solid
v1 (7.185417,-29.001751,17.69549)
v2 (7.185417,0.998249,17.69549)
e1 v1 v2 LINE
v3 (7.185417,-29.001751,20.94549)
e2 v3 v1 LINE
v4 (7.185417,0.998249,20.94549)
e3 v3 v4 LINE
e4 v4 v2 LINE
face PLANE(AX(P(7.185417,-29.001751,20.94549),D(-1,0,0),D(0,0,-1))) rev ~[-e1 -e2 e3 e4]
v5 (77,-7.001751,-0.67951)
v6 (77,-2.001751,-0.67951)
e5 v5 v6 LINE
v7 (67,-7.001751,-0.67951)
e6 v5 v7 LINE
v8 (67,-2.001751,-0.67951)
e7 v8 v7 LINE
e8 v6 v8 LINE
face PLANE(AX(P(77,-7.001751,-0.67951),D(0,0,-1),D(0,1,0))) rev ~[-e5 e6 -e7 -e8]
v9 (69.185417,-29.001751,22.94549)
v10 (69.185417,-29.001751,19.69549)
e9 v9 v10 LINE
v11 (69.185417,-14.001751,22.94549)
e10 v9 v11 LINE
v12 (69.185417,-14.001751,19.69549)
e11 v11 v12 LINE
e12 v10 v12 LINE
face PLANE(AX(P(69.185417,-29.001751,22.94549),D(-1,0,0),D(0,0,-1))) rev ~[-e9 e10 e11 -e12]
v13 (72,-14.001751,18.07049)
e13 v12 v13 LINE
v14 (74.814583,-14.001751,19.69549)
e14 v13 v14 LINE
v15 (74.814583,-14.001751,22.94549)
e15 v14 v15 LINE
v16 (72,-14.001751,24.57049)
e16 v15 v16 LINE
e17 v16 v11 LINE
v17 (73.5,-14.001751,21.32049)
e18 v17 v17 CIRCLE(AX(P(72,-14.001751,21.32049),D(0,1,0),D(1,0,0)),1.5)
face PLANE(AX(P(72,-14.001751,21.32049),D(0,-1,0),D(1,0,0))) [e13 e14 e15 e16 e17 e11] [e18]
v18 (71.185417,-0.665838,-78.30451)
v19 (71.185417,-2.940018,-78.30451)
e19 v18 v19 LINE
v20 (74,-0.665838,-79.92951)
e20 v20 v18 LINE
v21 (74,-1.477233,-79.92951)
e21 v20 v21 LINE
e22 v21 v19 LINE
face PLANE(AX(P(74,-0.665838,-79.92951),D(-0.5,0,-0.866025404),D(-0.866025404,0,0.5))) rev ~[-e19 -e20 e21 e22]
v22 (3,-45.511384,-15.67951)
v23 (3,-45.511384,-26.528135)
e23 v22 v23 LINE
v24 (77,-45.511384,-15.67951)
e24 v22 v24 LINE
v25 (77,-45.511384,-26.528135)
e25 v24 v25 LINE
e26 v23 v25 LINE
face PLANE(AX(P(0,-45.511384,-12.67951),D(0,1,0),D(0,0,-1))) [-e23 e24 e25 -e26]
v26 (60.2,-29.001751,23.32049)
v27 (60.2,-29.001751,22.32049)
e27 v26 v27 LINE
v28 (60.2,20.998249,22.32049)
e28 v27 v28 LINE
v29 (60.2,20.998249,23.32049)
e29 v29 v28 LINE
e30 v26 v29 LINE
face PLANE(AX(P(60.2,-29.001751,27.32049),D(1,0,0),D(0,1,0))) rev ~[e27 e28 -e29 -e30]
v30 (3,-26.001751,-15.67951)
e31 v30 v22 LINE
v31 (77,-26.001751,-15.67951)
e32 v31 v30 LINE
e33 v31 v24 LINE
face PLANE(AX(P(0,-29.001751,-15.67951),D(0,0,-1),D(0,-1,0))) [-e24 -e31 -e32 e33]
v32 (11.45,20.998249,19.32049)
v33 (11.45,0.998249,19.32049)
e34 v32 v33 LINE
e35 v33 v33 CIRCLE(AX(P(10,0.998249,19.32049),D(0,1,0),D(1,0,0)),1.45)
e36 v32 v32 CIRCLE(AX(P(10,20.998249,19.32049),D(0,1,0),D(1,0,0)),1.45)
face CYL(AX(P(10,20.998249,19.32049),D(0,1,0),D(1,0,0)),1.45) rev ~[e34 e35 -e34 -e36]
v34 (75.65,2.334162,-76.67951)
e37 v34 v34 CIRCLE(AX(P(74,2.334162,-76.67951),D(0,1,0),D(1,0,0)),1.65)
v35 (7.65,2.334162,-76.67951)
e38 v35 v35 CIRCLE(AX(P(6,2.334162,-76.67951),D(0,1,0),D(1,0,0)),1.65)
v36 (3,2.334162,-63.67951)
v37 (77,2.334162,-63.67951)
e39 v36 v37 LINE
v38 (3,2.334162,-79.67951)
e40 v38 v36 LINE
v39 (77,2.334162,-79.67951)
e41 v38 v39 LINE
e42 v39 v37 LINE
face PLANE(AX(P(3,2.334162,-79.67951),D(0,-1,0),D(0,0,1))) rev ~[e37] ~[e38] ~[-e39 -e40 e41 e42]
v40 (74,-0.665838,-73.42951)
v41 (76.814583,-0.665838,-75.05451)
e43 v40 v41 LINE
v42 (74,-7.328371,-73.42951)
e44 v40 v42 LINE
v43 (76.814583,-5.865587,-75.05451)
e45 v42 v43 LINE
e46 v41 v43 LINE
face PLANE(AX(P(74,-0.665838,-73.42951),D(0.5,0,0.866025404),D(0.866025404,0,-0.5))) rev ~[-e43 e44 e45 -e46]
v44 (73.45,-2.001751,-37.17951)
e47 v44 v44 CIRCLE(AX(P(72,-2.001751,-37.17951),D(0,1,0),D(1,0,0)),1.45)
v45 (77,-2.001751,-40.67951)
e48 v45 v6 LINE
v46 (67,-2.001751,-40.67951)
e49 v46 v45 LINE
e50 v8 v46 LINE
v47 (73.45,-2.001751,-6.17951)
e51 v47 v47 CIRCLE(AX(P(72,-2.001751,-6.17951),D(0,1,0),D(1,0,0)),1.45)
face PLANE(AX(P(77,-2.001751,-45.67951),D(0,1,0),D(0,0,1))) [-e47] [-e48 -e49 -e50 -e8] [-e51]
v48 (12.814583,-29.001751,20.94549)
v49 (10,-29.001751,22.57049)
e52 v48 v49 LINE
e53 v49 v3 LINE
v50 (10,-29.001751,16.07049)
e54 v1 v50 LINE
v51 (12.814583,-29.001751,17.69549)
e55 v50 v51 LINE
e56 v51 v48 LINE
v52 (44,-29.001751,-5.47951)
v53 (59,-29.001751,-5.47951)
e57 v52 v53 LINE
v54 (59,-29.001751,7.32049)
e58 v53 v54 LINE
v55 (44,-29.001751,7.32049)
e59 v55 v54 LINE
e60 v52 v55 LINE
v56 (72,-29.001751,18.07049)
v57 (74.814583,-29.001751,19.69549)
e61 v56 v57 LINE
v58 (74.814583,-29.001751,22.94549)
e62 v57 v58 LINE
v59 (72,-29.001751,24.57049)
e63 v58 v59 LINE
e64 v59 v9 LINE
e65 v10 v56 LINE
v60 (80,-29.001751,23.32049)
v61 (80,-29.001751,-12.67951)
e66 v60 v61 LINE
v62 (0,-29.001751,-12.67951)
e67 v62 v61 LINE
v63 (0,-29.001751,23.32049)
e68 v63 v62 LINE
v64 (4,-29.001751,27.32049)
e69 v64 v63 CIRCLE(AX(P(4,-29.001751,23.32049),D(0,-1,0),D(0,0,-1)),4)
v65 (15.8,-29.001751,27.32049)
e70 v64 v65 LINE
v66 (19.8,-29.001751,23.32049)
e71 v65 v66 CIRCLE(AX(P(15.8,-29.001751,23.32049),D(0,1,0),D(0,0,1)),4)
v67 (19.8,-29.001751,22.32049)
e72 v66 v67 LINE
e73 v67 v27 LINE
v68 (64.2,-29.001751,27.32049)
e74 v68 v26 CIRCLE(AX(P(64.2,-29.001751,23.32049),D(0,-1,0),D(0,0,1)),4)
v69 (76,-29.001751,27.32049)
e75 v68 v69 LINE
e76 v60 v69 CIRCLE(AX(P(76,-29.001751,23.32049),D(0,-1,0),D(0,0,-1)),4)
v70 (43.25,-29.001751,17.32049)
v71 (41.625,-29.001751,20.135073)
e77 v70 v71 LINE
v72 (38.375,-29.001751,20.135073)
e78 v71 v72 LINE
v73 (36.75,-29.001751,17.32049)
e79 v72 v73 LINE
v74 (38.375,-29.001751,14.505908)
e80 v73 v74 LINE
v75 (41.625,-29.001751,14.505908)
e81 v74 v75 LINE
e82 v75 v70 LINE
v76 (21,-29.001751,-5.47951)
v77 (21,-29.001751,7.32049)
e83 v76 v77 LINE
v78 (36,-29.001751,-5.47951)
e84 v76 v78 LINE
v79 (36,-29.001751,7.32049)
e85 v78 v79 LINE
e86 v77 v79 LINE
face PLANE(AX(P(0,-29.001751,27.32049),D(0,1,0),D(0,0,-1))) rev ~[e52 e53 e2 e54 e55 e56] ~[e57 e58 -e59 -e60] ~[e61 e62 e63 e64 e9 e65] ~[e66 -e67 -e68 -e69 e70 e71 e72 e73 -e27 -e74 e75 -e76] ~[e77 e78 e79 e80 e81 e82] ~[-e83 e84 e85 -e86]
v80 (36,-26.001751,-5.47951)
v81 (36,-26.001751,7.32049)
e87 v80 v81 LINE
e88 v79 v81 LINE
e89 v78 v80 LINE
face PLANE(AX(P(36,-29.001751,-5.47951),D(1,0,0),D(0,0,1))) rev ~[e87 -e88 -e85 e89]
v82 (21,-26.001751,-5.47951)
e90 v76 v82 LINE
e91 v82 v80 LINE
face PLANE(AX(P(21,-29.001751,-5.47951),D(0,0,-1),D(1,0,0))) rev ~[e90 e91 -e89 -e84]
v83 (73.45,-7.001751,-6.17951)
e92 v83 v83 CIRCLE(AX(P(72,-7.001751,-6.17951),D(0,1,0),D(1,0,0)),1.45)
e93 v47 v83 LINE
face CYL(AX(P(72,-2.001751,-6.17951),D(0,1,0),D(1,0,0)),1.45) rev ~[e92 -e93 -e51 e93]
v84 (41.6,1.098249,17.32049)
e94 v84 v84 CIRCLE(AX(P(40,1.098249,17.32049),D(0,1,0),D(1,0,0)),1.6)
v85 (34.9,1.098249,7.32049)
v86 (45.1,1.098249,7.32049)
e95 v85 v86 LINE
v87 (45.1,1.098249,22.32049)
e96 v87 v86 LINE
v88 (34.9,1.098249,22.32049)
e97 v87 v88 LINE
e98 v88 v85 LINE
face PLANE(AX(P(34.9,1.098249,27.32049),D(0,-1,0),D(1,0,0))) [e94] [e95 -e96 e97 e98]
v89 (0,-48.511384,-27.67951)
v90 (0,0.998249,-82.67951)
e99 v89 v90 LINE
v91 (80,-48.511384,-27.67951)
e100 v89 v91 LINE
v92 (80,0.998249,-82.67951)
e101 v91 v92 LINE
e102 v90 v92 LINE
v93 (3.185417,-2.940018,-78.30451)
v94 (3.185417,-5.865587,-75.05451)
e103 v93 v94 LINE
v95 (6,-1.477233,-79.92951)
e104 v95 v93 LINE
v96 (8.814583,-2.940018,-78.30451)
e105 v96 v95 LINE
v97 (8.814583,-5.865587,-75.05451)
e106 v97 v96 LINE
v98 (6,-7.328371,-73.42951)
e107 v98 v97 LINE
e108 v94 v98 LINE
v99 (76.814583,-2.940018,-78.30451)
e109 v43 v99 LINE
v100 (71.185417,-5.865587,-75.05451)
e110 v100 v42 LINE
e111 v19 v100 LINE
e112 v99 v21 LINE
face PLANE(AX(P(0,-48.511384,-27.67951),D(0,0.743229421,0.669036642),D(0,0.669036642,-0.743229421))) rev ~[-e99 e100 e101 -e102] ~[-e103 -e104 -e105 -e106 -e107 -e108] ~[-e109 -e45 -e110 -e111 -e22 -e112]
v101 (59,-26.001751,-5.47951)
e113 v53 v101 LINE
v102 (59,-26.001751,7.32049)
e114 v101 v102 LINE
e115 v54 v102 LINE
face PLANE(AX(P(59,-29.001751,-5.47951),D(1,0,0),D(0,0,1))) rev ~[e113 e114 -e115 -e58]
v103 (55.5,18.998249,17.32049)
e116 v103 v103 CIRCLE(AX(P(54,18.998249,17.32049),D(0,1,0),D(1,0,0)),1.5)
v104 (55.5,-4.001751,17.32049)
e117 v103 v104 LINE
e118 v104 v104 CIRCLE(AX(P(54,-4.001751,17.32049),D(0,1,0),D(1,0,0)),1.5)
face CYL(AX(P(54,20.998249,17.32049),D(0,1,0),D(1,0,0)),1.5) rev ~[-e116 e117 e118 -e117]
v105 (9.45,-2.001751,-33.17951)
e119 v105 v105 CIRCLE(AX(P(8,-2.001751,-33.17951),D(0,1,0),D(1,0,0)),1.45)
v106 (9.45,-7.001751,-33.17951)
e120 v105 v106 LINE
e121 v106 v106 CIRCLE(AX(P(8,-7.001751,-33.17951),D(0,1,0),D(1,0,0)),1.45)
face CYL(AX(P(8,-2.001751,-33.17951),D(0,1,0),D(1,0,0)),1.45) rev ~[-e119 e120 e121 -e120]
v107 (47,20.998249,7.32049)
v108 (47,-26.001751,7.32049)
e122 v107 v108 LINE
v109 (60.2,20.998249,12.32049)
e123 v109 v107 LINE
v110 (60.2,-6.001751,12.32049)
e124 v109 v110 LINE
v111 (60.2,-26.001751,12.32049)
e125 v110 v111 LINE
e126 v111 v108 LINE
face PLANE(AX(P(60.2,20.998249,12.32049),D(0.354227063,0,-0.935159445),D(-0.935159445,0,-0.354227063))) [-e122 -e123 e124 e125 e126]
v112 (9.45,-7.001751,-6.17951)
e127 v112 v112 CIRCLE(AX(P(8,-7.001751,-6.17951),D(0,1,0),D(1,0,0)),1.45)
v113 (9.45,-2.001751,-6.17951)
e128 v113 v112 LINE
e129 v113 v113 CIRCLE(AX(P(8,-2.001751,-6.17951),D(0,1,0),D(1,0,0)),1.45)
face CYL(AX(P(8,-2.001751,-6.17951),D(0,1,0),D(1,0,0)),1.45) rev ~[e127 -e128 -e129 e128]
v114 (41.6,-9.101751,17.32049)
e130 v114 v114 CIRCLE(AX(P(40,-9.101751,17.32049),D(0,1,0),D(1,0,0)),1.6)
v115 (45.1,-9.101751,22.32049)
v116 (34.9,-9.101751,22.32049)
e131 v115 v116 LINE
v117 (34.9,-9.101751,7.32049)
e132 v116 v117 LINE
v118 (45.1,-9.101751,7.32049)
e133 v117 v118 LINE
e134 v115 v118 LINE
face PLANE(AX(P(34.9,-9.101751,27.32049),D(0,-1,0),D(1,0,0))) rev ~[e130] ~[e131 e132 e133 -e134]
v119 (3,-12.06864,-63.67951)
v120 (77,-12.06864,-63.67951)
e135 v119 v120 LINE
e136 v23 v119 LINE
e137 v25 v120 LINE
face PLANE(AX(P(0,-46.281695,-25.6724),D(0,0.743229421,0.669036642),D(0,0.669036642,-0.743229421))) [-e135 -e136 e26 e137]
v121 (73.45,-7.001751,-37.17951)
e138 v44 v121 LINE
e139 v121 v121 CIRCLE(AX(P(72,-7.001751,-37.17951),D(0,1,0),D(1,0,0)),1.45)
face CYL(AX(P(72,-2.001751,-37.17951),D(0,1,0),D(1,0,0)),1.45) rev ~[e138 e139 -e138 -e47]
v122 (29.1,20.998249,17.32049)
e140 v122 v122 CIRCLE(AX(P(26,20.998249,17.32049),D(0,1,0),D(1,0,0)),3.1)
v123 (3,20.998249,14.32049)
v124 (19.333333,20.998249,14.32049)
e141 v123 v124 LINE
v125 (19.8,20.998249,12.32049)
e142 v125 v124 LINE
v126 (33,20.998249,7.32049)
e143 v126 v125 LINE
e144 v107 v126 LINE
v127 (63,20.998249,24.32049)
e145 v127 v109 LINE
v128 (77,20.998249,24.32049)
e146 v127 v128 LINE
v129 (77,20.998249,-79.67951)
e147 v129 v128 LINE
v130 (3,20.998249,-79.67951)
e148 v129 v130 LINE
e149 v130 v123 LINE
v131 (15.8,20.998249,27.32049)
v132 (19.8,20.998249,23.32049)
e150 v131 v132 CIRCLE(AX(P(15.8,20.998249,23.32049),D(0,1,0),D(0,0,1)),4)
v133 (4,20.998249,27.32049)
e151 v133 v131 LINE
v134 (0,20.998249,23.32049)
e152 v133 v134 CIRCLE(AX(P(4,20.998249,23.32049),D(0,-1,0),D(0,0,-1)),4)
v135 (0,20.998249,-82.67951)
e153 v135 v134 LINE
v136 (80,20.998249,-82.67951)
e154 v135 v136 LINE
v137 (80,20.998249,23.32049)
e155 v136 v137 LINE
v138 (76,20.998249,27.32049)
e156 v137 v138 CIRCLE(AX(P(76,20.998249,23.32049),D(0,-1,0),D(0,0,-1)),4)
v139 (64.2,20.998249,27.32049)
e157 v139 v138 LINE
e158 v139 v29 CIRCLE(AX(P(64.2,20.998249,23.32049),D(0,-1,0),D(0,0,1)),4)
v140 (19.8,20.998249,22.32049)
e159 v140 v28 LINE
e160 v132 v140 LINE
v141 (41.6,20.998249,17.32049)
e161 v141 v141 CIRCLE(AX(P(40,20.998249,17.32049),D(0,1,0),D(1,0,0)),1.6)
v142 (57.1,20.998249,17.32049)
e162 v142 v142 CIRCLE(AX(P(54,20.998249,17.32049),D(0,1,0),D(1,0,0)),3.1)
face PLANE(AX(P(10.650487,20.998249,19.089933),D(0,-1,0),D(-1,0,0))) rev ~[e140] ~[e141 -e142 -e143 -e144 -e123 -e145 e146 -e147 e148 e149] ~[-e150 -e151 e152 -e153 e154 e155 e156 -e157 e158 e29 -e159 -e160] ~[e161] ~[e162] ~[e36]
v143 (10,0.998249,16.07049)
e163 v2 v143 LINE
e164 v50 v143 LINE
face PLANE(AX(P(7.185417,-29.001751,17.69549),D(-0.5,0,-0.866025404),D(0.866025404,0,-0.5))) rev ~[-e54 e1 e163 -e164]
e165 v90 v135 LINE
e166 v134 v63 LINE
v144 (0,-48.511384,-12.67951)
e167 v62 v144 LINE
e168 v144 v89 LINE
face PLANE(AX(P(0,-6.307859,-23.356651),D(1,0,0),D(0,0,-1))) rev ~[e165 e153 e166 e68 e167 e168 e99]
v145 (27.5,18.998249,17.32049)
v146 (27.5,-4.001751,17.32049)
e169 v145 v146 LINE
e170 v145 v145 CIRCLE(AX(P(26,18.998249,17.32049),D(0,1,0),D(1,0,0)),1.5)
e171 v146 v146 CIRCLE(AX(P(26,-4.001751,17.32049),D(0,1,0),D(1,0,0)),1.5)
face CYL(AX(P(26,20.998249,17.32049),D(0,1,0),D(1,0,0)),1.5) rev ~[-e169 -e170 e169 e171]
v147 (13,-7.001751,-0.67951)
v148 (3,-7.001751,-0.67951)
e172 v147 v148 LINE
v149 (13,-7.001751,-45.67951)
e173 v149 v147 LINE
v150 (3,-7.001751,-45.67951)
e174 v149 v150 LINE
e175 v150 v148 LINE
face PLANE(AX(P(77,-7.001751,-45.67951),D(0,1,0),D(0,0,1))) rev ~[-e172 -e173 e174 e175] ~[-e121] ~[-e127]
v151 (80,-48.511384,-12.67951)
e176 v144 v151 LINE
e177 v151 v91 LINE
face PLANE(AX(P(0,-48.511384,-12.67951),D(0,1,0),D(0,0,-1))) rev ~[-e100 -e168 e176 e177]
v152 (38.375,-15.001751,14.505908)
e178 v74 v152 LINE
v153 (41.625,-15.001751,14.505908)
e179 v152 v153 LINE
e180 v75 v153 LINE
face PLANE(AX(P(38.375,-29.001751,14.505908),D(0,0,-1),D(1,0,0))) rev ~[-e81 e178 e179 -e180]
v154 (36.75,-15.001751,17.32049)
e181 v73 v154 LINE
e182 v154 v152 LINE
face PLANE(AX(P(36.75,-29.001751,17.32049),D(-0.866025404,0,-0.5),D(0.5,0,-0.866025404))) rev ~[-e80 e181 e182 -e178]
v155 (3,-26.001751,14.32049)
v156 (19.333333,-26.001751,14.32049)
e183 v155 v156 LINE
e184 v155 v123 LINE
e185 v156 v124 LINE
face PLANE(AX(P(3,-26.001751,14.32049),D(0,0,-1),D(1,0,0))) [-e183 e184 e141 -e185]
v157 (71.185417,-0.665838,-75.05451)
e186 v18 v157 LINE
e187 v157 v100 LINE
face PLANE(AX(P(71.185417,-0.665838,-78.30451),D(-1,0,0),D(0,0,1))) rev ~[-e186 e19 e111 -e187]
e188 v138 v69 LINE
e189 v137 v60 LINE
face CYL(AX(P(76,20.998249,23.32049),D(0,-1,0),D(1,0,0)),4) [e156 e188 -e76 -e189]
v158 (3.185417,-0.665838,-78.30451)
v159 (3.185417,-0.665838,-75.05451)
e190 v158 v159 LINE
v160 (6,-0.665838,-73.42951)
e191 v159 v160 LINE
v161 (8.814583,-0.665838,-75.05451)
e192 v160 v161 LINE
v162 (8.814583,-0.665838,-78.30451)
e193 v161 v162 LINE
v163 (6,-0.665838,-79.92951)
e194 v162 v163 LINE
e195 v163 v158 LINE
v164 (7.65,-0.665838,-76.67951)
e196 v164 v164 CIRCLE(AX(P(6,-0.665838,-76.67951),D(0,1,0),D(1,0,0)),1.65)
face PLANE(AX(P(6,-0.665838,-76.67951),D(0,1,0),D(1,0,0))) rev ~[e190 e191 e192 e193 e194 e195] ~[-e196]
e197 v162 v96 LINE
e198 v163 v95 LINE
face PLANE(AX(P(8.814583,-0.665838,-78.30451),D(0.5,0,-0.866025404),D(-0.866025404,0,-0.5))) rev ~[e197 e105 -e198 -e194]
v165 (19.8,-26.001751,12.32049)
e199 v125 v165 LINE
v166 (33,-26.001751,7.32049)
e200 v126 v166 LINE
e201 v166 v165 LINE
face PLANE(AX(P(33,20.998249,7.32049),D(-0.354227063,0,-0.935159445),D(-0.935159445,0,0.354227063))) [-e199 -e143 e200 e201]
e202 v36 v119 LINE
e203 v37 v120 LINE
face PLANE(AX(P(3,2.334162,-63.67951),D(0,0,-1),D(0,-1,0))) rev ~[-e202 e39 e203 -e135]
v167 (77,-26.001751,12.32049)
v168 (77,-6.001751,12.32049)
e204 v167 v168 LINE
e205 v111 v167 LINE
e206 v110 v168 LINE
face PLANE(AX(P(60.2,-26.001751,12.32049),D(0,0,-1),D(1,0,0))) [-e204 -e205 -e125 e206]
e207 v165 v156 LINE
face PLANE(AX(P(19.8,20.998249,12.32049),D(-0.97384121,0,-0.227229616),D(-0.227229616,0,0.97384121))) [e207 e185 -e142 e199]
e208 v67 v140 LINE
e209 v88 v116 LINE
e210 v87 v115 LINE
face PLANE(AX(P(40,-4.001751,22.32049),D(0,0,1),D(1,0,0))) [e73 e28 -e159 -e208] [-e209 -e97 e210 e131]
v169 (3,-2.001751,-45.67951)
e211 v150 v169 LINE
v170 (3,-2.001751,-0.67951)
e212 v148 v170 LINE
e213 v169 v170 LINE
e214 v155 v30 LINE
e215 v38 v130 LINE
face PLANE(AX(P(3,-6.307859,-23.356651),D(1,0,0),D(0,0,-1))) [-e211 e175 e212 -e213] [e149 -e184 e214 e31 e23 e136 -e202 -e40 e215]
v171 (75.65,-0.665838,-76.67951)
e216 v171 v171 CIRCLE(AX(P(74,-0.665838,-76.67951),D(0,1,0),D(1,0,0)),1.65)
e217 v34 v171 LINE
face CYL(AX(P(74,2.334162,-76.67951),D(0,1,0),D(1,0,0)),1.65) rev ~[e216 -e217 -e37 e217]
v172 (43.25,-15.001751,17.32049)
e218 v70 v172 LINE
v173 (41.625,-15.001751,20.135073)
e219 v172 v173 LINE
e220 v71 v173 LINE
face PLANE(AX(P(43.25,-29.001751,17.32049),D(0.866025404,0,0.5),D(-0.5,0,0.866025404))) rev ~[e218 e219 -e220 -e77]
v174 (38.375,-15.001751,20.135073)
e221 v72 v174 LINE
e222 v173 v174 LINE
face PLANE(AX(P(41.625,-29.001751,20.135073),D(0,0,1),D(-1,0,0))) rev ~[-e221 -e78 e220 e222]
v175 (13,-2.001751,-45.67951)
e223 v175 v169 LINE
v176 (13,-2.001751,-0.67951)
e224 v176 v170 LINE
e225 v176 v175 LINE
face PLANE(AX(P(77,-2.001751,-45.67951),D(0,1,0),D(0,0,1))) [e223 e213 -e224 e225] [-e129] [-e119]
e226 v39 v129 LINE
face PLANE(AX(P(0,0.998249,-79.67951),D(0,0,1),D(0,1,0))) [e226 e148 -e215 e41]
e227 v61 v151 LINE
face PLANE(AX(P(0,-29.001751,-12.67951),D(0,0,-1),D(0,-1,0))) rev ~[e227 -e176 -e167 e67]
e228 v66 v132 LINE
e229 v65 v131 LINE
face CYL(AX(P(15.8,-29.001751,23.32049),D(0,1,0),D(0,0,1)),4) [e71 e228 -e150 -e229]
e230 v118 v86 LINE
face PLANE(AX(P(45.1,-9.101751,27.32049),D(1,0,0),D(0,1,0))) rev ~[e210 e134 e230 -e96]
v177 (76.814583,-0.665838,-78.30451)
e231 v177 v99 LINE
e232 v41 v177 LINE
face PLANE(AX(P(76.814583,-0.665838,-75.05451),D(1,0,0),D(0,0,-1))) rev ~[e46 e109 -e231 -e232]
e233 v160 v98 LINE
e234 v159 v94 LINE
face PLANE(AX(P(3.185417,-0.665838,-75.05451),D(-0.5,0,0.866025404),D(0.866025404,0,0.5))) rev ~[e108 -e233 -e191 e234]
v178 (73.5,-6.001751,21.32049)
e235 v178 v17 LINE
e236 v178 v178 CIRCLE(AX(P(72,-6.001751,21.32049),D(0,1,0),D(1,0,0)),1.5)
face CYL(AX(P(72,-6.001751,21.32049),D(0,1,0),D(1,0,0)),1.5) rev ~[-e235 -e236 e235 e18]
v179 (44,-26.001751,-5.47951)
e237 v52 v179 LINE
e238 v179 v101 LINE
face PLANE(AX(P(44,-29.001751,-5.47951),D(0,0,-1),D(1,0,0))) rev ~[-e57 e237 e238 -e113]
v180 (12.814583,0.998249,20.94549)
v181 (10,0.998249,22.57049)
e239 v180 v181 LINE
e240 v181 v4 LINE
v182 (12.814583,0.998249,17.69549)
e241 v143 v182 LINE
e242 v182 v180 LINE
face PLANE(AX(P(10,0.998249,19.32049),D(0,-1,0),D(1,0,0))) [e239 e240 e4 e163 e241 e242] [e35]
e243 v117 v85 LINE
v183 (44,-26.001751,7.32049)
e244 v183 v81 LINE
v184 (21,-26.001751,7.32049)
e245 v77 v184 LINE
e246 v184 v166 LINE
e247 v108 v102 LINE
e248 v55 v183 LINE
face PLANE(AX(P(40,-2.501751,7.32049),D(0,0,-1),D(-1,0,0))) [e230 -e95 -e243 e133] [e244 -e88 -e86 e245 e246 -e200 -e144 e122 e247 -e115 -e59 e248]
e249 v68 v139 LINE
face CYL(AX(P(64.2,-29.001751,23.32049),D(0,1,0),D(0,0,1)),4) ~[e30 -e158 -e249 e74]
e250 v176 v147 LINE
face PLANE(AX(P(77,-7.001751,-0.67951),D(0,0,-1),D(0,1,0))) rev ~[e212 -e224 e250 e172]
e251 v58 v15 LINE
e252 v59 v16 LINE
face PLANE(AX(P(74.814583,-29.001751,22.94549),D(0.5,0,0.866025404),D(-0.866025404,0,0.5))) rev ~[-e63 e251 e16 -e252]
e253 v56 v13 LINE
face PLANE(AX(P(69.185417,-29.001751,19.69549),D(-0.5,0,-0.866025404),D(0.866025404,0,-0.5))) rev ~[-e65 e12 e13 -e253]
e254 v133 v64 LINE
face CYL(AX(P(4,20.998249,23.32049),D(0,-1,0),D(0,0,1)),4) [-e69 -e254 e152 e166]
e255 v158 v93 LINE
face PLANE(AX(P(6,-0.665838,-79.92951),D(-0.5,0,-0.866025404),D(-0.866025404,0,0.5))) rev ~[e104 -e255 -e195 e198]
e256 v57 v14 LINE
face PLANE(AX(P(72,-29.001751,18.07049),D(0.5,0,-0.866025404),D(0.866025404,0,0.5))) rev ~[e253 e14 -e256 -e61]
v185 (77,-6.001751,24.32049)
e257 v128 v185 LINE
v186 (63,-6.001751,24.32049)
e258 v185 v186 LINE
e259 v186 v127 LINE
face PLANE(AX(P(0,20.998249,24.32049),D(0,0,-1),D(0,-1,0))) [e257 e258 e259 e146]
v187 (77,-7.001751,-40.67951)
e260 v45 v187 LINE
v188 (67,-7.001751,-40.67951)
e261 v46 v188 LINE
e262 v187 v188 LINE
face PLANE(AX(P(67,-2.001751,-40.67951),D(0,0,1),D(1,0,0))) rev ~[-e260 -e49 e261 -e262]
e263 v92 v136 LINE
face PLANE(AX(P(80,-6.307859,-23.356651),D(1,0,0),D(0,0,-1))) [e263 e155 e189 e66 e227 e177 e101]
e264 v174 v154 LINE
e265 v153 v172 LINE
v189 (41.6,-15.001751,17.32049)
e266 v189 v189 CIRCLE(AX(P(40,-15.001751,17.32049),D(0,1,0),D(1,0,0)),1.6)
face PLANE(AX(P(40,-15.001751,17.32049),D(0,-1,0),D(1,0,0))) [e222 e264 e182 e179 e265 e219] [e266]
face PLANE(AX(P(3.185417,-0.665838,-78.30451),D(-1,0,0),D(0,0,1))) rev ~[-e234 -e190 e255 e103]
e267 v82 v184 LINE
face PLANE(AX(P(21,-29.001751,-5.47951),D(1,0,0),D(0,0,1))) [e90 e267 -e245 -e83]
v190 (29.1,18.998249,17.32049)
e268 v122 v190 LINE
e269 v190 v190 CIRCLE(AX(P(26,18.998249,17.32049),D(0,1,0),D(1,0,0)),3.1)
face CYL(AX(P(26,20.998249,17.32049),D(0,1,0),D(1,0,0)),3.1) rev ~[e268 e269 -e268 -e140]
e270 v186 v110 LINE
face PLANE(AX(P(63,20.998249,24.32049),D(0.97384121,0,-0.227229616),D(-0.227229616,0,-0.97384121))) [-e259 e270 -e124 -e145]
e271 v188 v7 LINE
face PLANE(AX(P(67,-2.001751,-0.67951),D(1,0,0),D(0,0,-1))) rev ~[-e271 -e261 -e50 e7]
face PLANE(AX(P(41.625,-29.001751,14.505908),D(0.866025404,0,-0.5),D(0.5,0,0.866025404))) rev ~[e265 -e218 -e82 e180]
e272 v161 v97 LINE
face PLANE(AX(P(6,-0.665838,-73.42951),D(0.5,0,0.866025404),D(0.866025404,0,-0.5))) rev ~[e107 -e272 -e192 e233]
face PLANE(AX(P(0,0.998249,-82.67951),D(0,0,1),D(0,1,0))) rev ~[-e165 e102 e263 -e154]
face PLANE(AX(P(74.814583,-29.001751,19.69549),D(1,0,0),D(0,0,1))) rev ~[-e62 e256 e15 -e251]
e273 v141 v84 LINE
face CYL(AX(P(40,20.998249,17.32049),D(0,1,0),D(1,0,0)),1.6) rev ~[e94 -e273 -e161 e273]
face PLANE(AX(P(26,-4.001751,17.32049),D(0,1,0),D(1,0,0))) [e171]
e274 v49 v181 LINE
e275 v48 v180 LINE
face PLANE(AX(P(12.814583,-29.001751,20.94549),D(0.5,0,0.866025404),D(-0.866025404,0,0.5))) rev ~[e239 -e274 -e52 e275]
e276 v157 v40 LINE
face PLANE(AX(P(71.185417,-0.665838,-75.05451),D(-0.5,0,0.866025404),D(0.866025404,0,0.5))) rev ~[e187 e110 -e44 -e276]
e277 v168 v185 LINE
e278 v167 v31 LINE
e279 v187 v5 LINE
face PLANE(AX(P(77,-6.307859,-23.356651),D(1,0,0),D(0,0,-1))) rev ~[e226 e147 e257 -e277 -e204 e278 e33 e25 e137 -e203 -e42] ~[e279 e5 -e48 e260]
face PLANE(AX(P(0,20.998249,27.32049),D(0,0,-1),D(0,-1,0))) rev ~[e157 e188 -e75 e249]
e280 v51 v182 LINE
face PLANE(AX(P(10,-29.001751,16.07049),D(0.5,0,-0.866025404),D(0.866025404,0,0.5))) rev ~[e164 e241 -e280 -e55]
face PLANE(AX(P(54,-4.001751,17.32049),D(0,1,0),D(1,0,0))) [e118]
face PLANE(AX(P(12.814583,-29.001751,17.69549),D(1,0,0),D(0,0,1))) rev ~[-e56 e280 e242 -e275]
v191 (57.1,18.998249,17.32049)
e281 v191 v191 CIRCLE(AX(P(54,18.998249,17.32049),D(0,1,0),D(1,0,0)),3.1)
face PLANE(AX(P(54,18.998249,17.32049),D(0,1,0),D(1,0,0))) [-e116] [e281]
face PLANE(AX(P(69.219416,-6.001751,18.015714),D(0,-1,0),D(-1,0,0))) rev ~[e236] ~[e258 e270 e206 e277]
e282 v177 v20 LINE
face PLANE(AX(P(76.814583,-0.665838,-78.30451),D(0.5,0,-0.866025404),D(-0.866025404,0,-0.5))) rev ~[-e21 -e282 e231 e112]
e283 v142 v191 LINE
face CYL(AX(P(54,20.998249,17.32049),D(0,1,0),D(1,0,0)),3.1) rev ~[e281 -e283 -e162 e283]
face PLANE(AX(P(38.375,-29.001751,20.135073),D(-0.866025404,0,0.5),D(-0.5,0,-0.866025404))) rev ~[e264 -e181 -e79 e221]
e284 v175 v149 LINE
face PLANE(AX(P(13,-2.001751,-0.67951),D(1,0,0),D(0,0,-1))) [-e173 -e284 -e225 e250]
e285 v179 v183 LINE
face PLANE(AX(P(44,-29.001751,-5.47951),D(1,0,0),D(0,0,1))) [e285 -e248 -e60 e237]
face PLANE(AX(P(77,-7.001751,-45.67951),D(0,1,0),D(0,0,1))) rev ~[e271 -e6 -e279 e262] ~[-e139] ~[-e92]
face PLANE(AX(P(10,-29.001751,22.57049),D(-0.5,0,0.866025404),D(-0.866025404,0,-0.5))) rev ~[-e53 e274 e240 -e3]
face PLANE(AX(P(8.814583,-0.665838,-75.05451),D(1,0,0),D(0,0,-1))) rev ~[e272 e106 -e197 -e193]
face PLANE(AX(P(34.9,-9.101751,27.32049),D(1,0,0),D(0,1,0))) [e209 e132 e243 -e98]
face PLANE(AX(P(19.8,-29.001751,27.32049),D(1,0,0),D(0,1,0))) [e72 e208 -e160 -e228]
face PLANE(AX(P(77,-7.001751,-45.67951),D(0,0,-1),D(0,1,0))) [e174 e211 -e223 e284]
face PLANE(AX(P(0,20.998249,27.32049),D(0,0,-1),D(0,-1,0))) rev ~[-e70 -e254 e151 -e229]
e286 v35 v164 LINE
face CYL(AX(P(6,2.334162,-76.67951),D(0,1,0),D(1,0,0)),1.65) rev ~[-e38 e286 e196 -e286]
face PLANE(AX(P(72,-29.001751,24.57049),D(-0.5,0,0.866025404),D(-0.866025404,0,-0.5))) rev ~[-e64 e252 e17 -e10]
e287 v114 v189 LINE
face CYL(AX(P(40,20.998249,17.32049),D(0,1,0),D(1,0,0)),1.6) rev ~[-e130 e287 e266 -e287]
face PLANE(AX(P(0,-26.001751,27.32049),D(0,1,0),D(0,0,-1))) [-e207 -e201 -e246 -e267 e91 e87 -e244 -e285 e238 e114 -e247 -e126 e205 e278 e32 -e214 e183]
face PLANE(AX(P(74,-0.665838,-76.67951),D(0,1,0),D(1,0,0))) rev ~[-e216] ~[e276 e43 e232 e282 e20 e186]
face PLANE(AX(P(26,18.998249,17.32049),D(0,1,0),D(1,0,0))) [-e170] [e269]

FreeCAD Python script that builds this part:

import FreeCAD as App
import Part
import Sketcher
from FreeCAD import Vector
Q = App.Units.Quantity


def edges_at(feature, points):
    """Names of the edges that pass closest to the given points."""
    edges = feature.Shape.Edges
    near = lambda p: min(range(len(edges)), key=lambda i: edges[i].distToShape(Part.Vertex(*p))[0])
    return sorted({f"Edge{near(p) + 1}" for p in points})


def faces_at(feature, points):
    """Names of the faces that lie closest to the given points."""
    faces = feature.Shape.Faces
    near = lambda p: min(range(len(faces)), key=lambda i: faces[i].distToShape(Part.Vertex(*p))[0])
    return sorted({f"Face{near(p) + 1}" for p in points})


def add_polygon(sketch, points):
    """Adds a closed chain of lines whose ends are joined by coincident constraints."""
    first, n = sketch.GeometryCount, len(points)
    for a, b in zip(points, points[1:] + points[:1]):
        sketch.addGeometry(Part.LineSegment(App.Vector(*a, 0), App.Vector(*b, 0)), False)
    for i in range(n):
        sketch.addConstraint(Sketcher.Constraint("Coincident", first + i, 2, first + (i + 1) % n, 1))

doc = App.newDocument("Part")
body = doc.addObject("PartDesign::Body", "Body")

# Sketch on YZ plane
sketch1 = body.newObject("Sketcher::SketchObject", "Sketch")
sketch1.AttachmentSupport = (doc.getObject("YZ_Plane"), [""])
sketch1.MapMode = "FlatFace"
add_polygon(sketch1, [(21, 27), (-29, 27), (-29, -13), (-49, -13), (-49, -28), (1, -83), (21, -83)])  # lines 0-6
sketch1.addConstraint([
    Sketcher.Constraint("Horizontal", 0),
    Sketcher.Constraint("Vertical", 1),
    Sketcher.Constraint("Horizontal", 2),
    Sketcher.Constraint("Vertical", 3),
    Sketcher.Constraint("Horizontal", 5),
    Sketcher.Constraint("Vertical", 6),
    Sketcher.Constraint("DistanceX", 0, 2, 0, 1, 50.0),
    Sketcher.Constraint("DistanceX", 5, 1, 5, 2, 20.0),
    Sketcher.Constraint("DistanceY", 1, 2, 1, 1, 40.0),
    Sketcher.Constraint("DistanceY", 3, 2, 3, 1, 15.0),
    Sketcher.Constraint("DistanceY", 6, 1, 6, 2, 110.0),
    Sketcher.Constraint("DistanceX", 2, 2, 2, 1, 19.509632),
    Sketcher.Constraint("DistanceX", 0, 2, -1, 1, 29.001751),
    Sketcher.Constraint("DistanceY", -1, 1, 0, 2, 27.32049),
])
pad1 = body.newObject("PartDesign::Pad", "Pad")
pad1.Profile = sketch1
pad1.Length = 80
doc.recompute()

thickness = body.newObject("PartDesign::Thickness", "Thickness")
thickness.Base = (pad1, faces_at(pad1, [(40, 20.998, -27.68)]))
thickness.Value = 3
thickness.Reversed = True
thickness.Join = "Intersection"

# Sketch on XY plane
sketch2 = body.newObject("Sketcher::SketchObject", "Sketch001")
sketch2.AttachmentSupport = (doc.getObject("XY_Plane"), [""])
sketch2.MapMode = "FlatFace"
sketch2.AttachmentOffset = App.Placement(Vector(0, 0, 24.32049), App.Rotation())
add_polygon(sketch2, [(63, 21), (63, -26), (17, -26), (17, 21)])  # lines 0-3
sketch2.addConstraint([
    Sketcher.Constraint("Vertical", 0),
    Sketcher.Constraint("Horizontal", 1),
    Sketcher.Constraint("Vertical", 2),
    Sketcher.Constraint("Horizontal", 3),
    Sketcher.Constraint("DistanceX", 1, 2, 1, 1, 46.0),
    Sketcher.Constraint("DistanceY", 0, 2, 0, 1, 47.0),
    Sketcher.Constraint("DistanceX", -1, 1, 0, 2, 63.0),
    Sketcher.Constraint("DistanceY", 0, 2, -1, 1, 26.001751),
])
pad2 = body.newObject("PartDesign::Pad", "Pad001")
pad2.Profile = sketch2
pad2.Length = 17
pad2.Reversed = True

# Sketch on XY plane
sketch3 = body.newObject("Sketcher::SketchObject", "Sketch002")
sketch3.AttachmentSupport = (doc.getObject("XY_Plane"), [""])
sketch3.MapMode = "FlatFace"
sketch3.AttachmentOffset = App.Placement(Vector(0, 0, 27.32049), App.Rotation())
add_polygon(sketch3, [(35, 1), (35, -9), (45, -9), (45, 1)])  # lines 0-3
sketch3.addConstraint([
    Sketcher.Constraint("Vertical", 0),
    Sketcher.Constraint("Horizontal", 1),
    Sketcher.Constraint("Vertical", 2),
    Sketcher.Constraint("Horizontal", 3),
    Sketcher.Constraint("Equal", 3, 0),
    Sketcher.Constraint("DistanceX", 1, 1, 1, 2, 10.2),
    Sketcher.Constraint("DistanceX", -1, 1, 0, 2, 34.9),
    Sketcher.Constraint("DistanceY", 0, 2, -1, 1, 9.101751),
])
pocket1 = body.newObject("PartDesign::Pocket", "Pocket")
pocket1.Profile = sketch3
pocket1.Length = 20

# Sketch on XZ plane
sketch4 = body.newObject("Sketcher::SketchObject", "Sketch003")
sketch4.AttachmentSupport = (doc.getObject("XZ_Plane"), [""])
sketch4.MapMode = "FlatFace"
sketch4.AttachmentOffset = App.Placement(Vector(0, 0, 29.001751), App.Rotation())
add_polygon(sketch4, [(44, 7), (44, -5), (59, -5), (59, 7)])  # lines 0-3
add_polygon(sketch4, [(21, 7), (21, -5), (36, -5), (36, 7)])  # lines 4-7
sketch4.addConstraint([
    Sketcher.Constraint("Vertical", 0),
    Sketcher.Constraint("Horizontal", 1),
    Sketcher.Constraint("Vertical", 2),
    Sketcher.Constraint("Horizontal", 3),
    Sketcher.Constraint("Vertical", 4),
    Sketcher.Constraint("Horizontal", 5),
    Sketcher.Constraint("Vertical", 6),
    Sketcher.Constraint("Horizontal", 7),
    Sketcher.Constraint("Horizontal", 1, 2, 4, 2),
    Sketcher.Constraint("Horizontal", 3, 2, 6, 2),
    Sketcher.Constraint("Equal", 3, 5),
    Sketcher.Constraint("DistanceX", 1, 1, 1, 2, 15.0),
    Sketcher.Constraint("DistanceY", 0, 2, 0, 1, 12.8),
    Sketcher.Constraint("DistanceX", -1, 1, 0, 2, 44.0),
    Sketcher.Constraint("DistanceX", -1, 1, 4, 2, 21.0),
    Sketcher.Constraint("DistanceY", 0, 2, -1, 1, 5.47951),
])
pocket2 = body.newObject("PartDesign::Pocket", "Pocket001")
pocket2.Profile = sketch4
pocket2.Length = 3

# Sketch on XY plane
sketch5 = body.newObject("Sketcher::SketchObject", "Sketch004")
sketch5.AttachmentSupport = (doc.getObject("XY_Plane"), [""])
sketch5.MapMode = "FlatFace"
sketch5.AttachmentOffset = App.Placement(Vector(0, 0, 27.32049), App.Rotation())
add_polygon(sketch5, [(20, 21), (20, -29), (60, -29), (60, 21)])  # lines 0-3
sketch5.addConstraint([
    Sketcher.Constraint("Vertical", 0),
    Sketcher.Constraint("Horizontal", 1),
    Sketcher.Constraint("Vertical", 2),
    Sketcher.Constraint("Horizontal", 3),
    Sketcher.Constraint("DistanceY", 0, 2, 0, 1, 50.0),
    Sketcher.Constraint("DistanceX", 1, 1, 1, 2, 40.4),
    Sketcher.Constraint("DistanceX", -1, 1, 0, 2, 19.8),
    Sketcher.Constraint("DistanceY", 0, 2, -1, 1, 29.001751),
])
pocket3 = body.newObject("PartDesign::Pocket", "Pocket002")
pocket3.Profile = sketch5
pocket3.Length = 5
doc.recompute()

fillet = body.newObject("PartDesign::Fillet", "Fillet")
fillet.Base = (pocket3, edges_at(pocket3, [
    (19.8, -4.002, 27.32),
    (60.2, -4.002, 27.32),
    (80, -4.002, 27.32),
    (0, -4.002, 27.32),
]))
fillet.Radius = 4

# Sketch on XZ plane
sketch6 = body.newObject("Sketcher::SketchObject", "Sketch005")
sketch6.AttachmentSupport = (doc.getObject("XZ_Plane"), [""])
sketch6.MapMode = "FlatFace"
sketch6.AttachmentOffset = App.Placement(Vector(0, 0, -20.998249), App.Rotation())
add_polygon(sketch6, [(20, 12), (33, 7), (17, 7), (17, 24)])  # lines 0-3
add_polygon(sketch6, [(63, 7), (47, 7), (60, 12), (63, 24)])  # lines 4-7
sketch6.addConstraint([
    Sketcher.Constraint("Horizontal", 1),
    Sketcher.Constraint("Vertical", 2),
    Sketcher.Constraint("Horizontal", 4),
    Sketcher.Constraint("Vertical", 7),
    Sketcher.Constraint("Horizontal", 1, 2, 4, 2),
    Sketcher.Constraint("Horizontal", 3, 2, 5, 2),
    Sketcher.Constraint("Horizontal", 2, 2, 6, 2),
    Sketcher.Constraint("Equal", 1, 4),
    Sketcher.Constraint("Equal", 0, 5),
    Sketcher.Constraint("DistanceX", 1, 2, 1, 1, 16.0),
    Sketcher.Constraint("DistanceY", 2, 1, 2, 2, 17.0),
    Sketcher.Constraint("DistanceX", -1, 1, 0, 2, 33.0),
    Sketcher.Constraint("DistanceX", -1, 1, 4, 2, 47.0),
    Sketcher.Constraint("DistanceY", 1, 2, 3, 2, 5.0),
    Sketcher.Constraint("DistanceX", -1, 1, 3, 2, 19.8),
    Sketcher.Constraint("DistanceY", -1, 1, 0, 2, 7.32049),
])
pocket4 = body.newObject("PartDesign::Pocket", "Pocket003")
pocket4.Profile = sketch6
pocket4.Length = 47
pocket4.Reversed = True

# Sketch on XZ plane
sketch7 = body.newObject("Sketcher::SketchObject", "Sketch006")
sketch7.AttachmentSupport = (doc.getObject("XZ_Plane"), [""])
sketch7.MapMode = "FlatFace"
sketch7.AttachmentOffset = App.Placement(Vector(0, 0, -20.998249), App.Rotation())
sketch7.addGeometry([
    Part.Circle(Vector(26, 17.3, 0), Vector(0, 0, 1), 1.5),
    Part.Circle(Vector(54, 17.3, 0), Vector(0, 0, 1), 1.5),
], False)
sketch7.addConstraint([
    Sketcher.Constraint("Equal", 0, 1),
    Sketcher.Constraint("Horizontal", 0, 3, 1, 3),
    Sketcher.Constraint("Diameter", 0, 3.0),
    Sketcher.Constraint("DistanceX", -1, 1, 0, 3, 26.0),
    Sketcher.Constraint("DistanceX", -1, 1, 1, 3, 54.0),
    Sketcher.Constraint("DistanceY", -1, 1, 0, 3, 17.32049),
])
pocket5 = body.newObject("PartDesign::Pocket", "Pocket004")
pocket5.Profile = sketch7
pocket5.Length = 25
pocket5.Reversed = True

# Sketch on XZ plane
sketch8 = body.newObject("Sketcher::SketchObject", "Sketch007")
sketch8.AttachmentSupport = (doc.getObject("XZ_Plane"), [""])
sketch8.MapMode = "FlatFace"
sketch8.AttachmentOffset = App.Placement(Vector(0, 0, -20.998249), App.Rotation())
sketch8.addGeometry([
    Part.Circle(Vector(26, 17.3, 0), Vector(0, 0, 1), 3.1),
    Part.Circle(Vector(54, 17.3, 0), Vector(0, 0, 1), 3.1),
], False)
sketch8.addConstraint([
    Sketcher.Constraint("Equal", 0, 1),
    Sketcher.Constraint("Horizontal", 0, 3, 1, 3),
    Sketcher.Constraint("Diameter", 0, 6.2),
    Sketcher.Constraint("DistanceX", -1, 1, 0, 3, 26.0),
    Sketcher.Constraint("DistanceX", -1, 1, 1, 3, 54.0),
    Sketcher.Constraint("DistanceY", -1, 1, 0, 3, 17.32049),
])
pocket6 = body.newObject("PartDesign::Pocket", "Pocket005")
pocket6.Profile = sketch8
pocket6.Length = 2
pocket6.Reversed = True

# Sketch on YZ plane
sketch9 = body.newObject("Sketcher::SketchObject", "Sketch008")
sketch9.AttachmentSupport = (doc.getObject("YZ_Plane"), [""])
sketch9.MapMode = "FlatFace"
sketch9.AttachmentOffset = App.Placement(Vector(0, 0, 77), App.Rotation())
add_polygon(sketch9, [(-2, -46), (-7, -46), (-7, -1), (-2, -1)])  # lines 0-3
sketch9.addConstraint([
    Sketcher.Constraint("Horizontal", 0),
    Sketcher.Constraint("Vertical", 1),
    Sketcher.Constraint("Horizontal", 2),
    Sketcher.Constraint("Vertical", 3),
    Sketcher.Constraint("DistanceX", 0, 2, 0, 1, 5.0),
    Sketcher.Constraint("DistanceY", 1, 1, 1, 2, 45.0),
    Sketcher.Constraint("DistanceX", 0, 2, -1, 1, 7.001751),
    Sketcher.Constraint("DistanceY", 0, 2, -1, 1, 45.67951),
])
pad3 = body.newObject("PartDesign::Pad", "Pad002")
pad3.Profile = sketch9
pad3.Length = 74
pad3.Reversed = True

# Sketch on XZ plane
sketch10 = body.newObject("Sketcher::SketchObject", "Sketch009")
sketch10.AttachmentSupport = (doc.getObject("XZ_Plane"), [""])
sketch10.MapMode = "FlatFace"
sketch10.AttachmentOffset = App.Placement(Vector(0, 0, 2.001751), App.Rotation())
add_polygon(sketch10, [(13, -46), (13, -1), (67, -1), (67, -46)])  # lines 0-3
sketch10.addConstraint([
    Sketcher.Constraint("Vertical", 0),
    Sketcher.Constraint("Horizontal", 1),
    Sketcher.Constraint("Vertical", 2),
    Sketcher.Constraint("Horizontal", 3),
    Sketcher.Constraint("DistanceX", 1, 1, 1, 2, 54.0),
    Sketcher.Constraint("DistanceY", 0, 1, 0, 2, 45.0),
    Sketcher.Constraint("DistanceX", -1, 1, 0, 2, 13.0),
    Sketcher.Constraint("DistanceY", 0, 2, -1, 1, 0.67951),
])
pocket7 = body.newObject("PartDesign::Pocket", "Pocket006")
pocket7.Profile = sketch10
pocket7.Type = "UpToFirst"
pocket7.Reversed = True

# Sketch on XZ plane
sketch11 = body.newObject("Sketcher::SketchObject", "Sketch010")
sketch11.AttachmentSupport = (doc.getObject("XZ_Plane"), [""])
sketch11.MapMode = "FlatFace"
sketch11.AttachmentOffset = App.Placement(Vector(0, 0, 2.001751), App.Rotation())
sketch11.addGeometry(Part.Circle(Vector(72, -37.2, 0), Vector(0, 0, 1), 1.4), False)
sketch11.addConstraint([
    Sketcher.Constraint("Diameter", 0, 2.9),
    Sketcher.Constraint("DistanceX", -1, 1, 0, 3, 72.0),
    Sketcher.Constraint("DistanceY", 0, 3, -1, 1, 37.17951),
])
pocket8 = body.newObject("PartDesign::Pocket", "Pocket007")
pocket8.Profile = sketch11
pocket8.Type = "UpToFirst"
pocket8.Reversed = True

# Sketch on XZ plane
sketch12 = body.newObject("Sketcher::SketchObject", "Sketch011")
sketch12.AttachmentSupport = (doc.getObject("XZ_Plane"), [""])
sketch12.MapMode = "FlatFace"
sketch12.AttachmentOffset = App.Placement(Vector(0, 0, 2.001751), App.Rotation())
sketch12.addGeometry(Part.Circle(Vector(72, -6.2, 0), Vector(0, 0, 1), 1.4), False)
sketch12.addConstraint([
    Sketcher.Constraint("Diameter", 0, 2.9),
    Sketcher.Constraint("DistanceX", -1, 1, 0, 3, 72.0),
    Sketcher.Constraint("DistanceY", 0, 3, -1, 1, 6.17951),
])
pocket9 = body.newObject("PartDesign::Pocket", "Pocket008")
pocket9.Profile = sketch12
pocket9.Type = "UpToFirst"
pocket9.Reversed = True

# Sketch on XZ plane
sketch13 = body.newObject("Sketcher::SketchObject", "Sketch012")
sketch13.AttachmentSupport = (doc.getObject("XZ_Plane"), [""])
sketch13.MapMode = "FlatFace"
sketch13.AttachmentOffset = App.Placement(Vector(0, 0, 2.001751), App.Rotation())
sketch13.addGeometry(Part.Circle(Vector(8, -33.2, 0), Vector(0, 0, 1), 1.4), False)
sketch13.addConstraint([
    Sketcher.Constraint("Diameter", 0, 2.9),
    Sketcher.Constraint("DistanceX", -1, 1, 0, 3, 8.0),
    Sketcher.Constraint("DistanceY", 0, 3, -1, 1, 33.17951),
])
pocket10 = body.newObject("PartDesign::Pocket", "Pocket009")
pocket10.Profile = sketch13
pocket10.Type = "UpToFirst"
pocket10.Reversed = True

# Sketch on XZ plane
sketch14 = body.newObject("Sketcher::SketchObject", "Sketch013")
sketch14.AttachmentSupport = (doc.getObject("XZ_Plane"), [""])
sketch14.MapMode = "FlatFace"
sketch14.AttachmentOffset = App.Placement(Vector(0, 0, 2.001751), App.Rotation())
sketch14.addGeometry(Part.Circle(Vector(8, -6.2, 0), Vector(0, 0, 1), 1.4), False)
sketch14.addConstraint([
    Sketcher.Constraint("Diameter", 0, 2.9),
    Sketcher.Constraint("DistanceX", -1, 1, 0, 3, 8.0),
    Sketcher.Constraint("DistanceY", 0, 3, -1, 1, 6.17951),
])
pocket11 = body.newObject("PartDesign::Pocket", "Pocket010")
pocket11.Profile = sketch14
pocket11.Type = "UpToFirst"
pocket11.Reversed = True

# Sketch on XZ plane
sketch15 = body.newObject("Sketcher::SketchObject", "Sketch014")
sketch15.AttachmentSupport = (doc.getObject("XZ_Plane"), [""])
sketch15.MapMode = "FlatFace"
sketch15.AttachmentOffset = App.Placement(Vector(0, 0, 26.001751), App.Rotation())
add_polygon(sketch15, [(3, 14), (3, 24), (17, 24), (19, 14)])  # lines 0-3
sketch15.addConstraint([
    Sketcher.Constraint("Vertical", 0),
    Sketcher.Constraint("Horizontal", 1),
    Sketcher.Constraint("Horizontal", 3),
    Sketcher.Constraint("DistanceX", 1, 1, 1, 2, 14.0),
    Sketcher.Constraint("DistanceY", 0, 1, 0, 2, 10.0),
    Sketcher.Constraint("DistanceX", -1, 1, 0, 2, 3.0),
    Sketcher.Constraint("DistanceX", 3, 2, 3, 1, 16.333333),
    Sketcher.Constraint("DistanceY", -1, 1, 0, 2, 24.32049),
])
pad4 = body.newObject("PartDesign::Pad", "Pad003")
pad4.Profile = sketch15
pad4.Length = 47
pad4.Reversed = True

# Sketch on XZ plane
sketch16 = body.newObject("Sketcher::SketchObject", "Sketch015")
sketch16.AttachmentSupport = (doc.getObject("XZ_Plane"), [""])
sketch16.MapMode = "FlatFace"
sketch16.AttachmentOffset = App.Placement(Vector(0, 0, -20.998249), App.Rotation())
sketch16.addGeometry(Part.Circle(Vector(10, 19.3, 0), Vector(0, 0, 1), 1.4), False)
sketch16.addConstraint([
    Sketcher.Constraint("Diameter", 0, 2.9),
    Sketcher.Constraint("DistanceX", -1, 1, 0, 3, 10.0),
    Sketcher.Constraint("DistanceY", -1, 1, 0, 3, 19.32049),
])
pocket12 = body.newObject("PartDesign::Pocket", "Pocket011")
pocket12.Profile = sketch16
pocket12.Type = "ThroughAll"
pocket12.Reversed = True

# Sketch on YZ plane
sketch17 = body.newObject("Sketcher::SketchObject", "Sketch016")
sketch17.AttachmentSupport = (doc.getObject("YZ_Plane"), [""])
sketch17.MapMode = "FlatFace"
sketch17.AttachmentOffset = App.Placement(Vector(0, 0, 3), App.Rotation())
add_polygon(sketch17, [(2, -80), (2, -64), (-12, -64)])  # lines 0-2
sketch17.addConstraint([
    Sketcher.Constraint("Vertical", 0),
    Sketcher.Constraint("Horizontal", 1),
    Sketcher.Constraint("DistanceY", 0, 1, 0, 2, 16.0),
    Sketcher.Constraint("DistanceX", 1, 2, 1, 1, 14.402802),
    Sketcher.Constraint("DistanceX", -1, 1, 0, 2, 2.334162),
    Sketcher.Constraint("DistanceY", 0, 2, -1, 1, 63.67951),
])
pad5 = body.newObject("PartDesign::Pad", "Pad004")
pad5.Profile = sketch17
pad5.Length = 74

# Sketch on XZ plane
sketch18 = body.newObject("Sketcher::SketchObject", "Sketch017")
sketch18.AttachmentSupport = (doc.getObject("XZ_Plane"), [""])
sketch18.MapMode = "FlatFace"
sketch18.AttachmentOffset = App.Placement(Vector(0, 0, -2.334162), App.Rotation())
sketch18.addGeometry([
    Part.Circle(Vector(6, -76.7, 0), Vector(0, 0, 1), 1.6),
    Part.Circle(Vector(74, -76.7, 0), Vector(0, 0, 1), 1.6),
], False)
sketch18.addConstraint([
    Sketcher.Constraint("Equal", 0, 1),
    Sketcher.Constraint("Horizontal", 0, 3, 1, 3),
    Sketcher.Constraint("Diameter", 0, 3.3),
    Sketcher.Constraint("DistanceX", -1, 1, 0, 3, 6.0),
    Sketcher.Constraint("DistanceX", -1, 1, 1, 3, 74.0),
    Sketcher.Constraint("DistanceY", 0, 3, -1, 1, 76.67951),
])
pocket13 = body.newObject("PartDesign::Pocket", "Pocket012")
pocket13.Profile = sketch18
pocket13.Length = 10
pocket13.Reversed = True

# Sketch on XZ plane
sketch19 = body.newObject("Sketcher::SketchObject", "Sketch018")
sketch19.AttachmentSupport = (doc.getObject("XZ_Plane"), [""])
sketch19.MapMode = "FlatFace"
sketch19.AttachmentOffset = App.Placement(Vector(0, 0, 0.665838), App.Rotation())
add_polygon(sketch19, [(74, -79.9), (71.2, -78.3), (71.2, -75.1), (74, -73.4), (76.8, -75.1), (76.8, -78.3)])  # lines 0-5
add_polygon(sketch19, [(6, -73.4), (8.8, -75.1), (8.8, -78.3), (6, -79.9), (3.2, -78.3), (3.2, -75.1)])  # lines 6-11
sketch19.addConstraint([
    Sketcher.Constraint("Vertical", 1),
    Sketcher.Constraint("Vertical", 4),
    Sketcher.Constraint("Vertical", 7),
    Sketcher.Constraint("Vertical", 10),
    Sketcher.Constraint("Parallel", 0, 3),
    Sketcher.Constraint("Parallel", 2, 5),
    Sketcher.Constraint("Parallel", 3, 6),
    Sketcher.Constraint("Parallel", 5, 8),
    Sketcher.Constraint("Parallel", 6, 9),
    Sketcher.Constraint("Parallel", 8, 11),
    Sketcher.Constraint("Horizontal", 1, 2, 3, 2),
    Sketcher.Constraint("Horizontal", 0, 2, 4, 2),
    Sketcher.Constraint("Horizontal", 3, 2, 6, 2),
    Sketcher.Constraint("Horizontal", 4, 2, 7, 2),
    Sketcher.Constraint("Horizontal", 5, 2, 8, 2),
    Sketcher.Constraint("Horizontal", 7, 2, 9, 2),
    Sketcher.Constraint("Horizontal", 6, 2, 10, 2),
    Sketcher.Constraint("Vertical", 2, 2, 5, 2),
    Sketcher.Constraint("Angle", 0, Q("150 deg")),
    Sketcher.Constraint("DistanceX", -1, 1, 2, 2, 74.0),
    Sketcher.Constraint("DistanceX", -1, 1, 8, 2, 6.0),
    Sketcher.Constraint("DistanceY", 1, 1, 1, 2, 3.25),
    Sketcher.Constraint("DistanceY", 5, 2, 2, 2, 6.5),
    Sketcher.Constraint("DistanceY", 0, 2, -1, 1, 78.30451),
])
pocket14 = body.newObject("PartDesign::Pocket", "Pocket013")
pocket14.Profile = sketch19
pocket14.Length = 32
pocket14.Reversed = True

# Sketch on XZ plane
sketch20 = body.newObject("Sketcher::SketchObject", "Sketch019")
sketch20.AttachmentSupport = (doc.getObject("XZ_Plane"), [""])
sketch20.MapMode = "FlatFace"
sketch20.AttachmentOffset = App.Placement(Vector(0, 0, 29.001751), App.Rotation())
add_polygon(sketch20, [(7.2, 17.7), (10, 16.1), (12.8, 17.7), (12.8, 20.9), (10, 22.6), (7.2, 20.9)])  # lines 0-5
sketch20.addConstraint([
    Sketcher.Constraint("Vertical", 2),
    Sketcher.Constraint("Vertical", 5),
    Sketcher.Constraint("Parallel", 0, 3),
    Sketcher.Constraint("Parallel", 1, 4),
    Sketcher.Constraint("Horizontal", 2, 2, 4, 2),
    Sketcher.Constraint("Horizontal", 1, 2, 5, 2),
    Sketcher.Constraint("Vertical", 0, 2, 3, 2),
    Sketcher.Constraint("Angle", 0, Q("-30 deg")),
    Sketcher.Constraint("DistanceX", -1, 1, 0, 2, 10.0),
    Sketcher.Constraint("DistanceY", 2, 1, 2, 2, 3.25),
    Sketcher.Constraint("DistanceY", 0, 2, 3, 2, 6.5),
    Sketcher.Constraint("DistanceY", -1, 1, 0, 2, 16.07049),
])
pocket15 = body.newObject("PartDesign::Pocket", "Pocket014")
pocket15.Profile = sketch20
pocket15.Length = 30

# Sketch on XZ plane
sketch21 = body.newObject("Sketcher::SketchObject", "Sketch020")
sketch21.AttachmentSupport = (doc.getObject("XZ_Plane"), [""])
sketch21.MapMode = "FlatFace"
sketch21.AttachmentOffset = App.Placement(Vector(0, 0, 26.001751), App.Rotation())
add_polygon(sketch21, [(63, 24), (77, 24), (77, 12), (60, 12)])  # lines 0-3
sketch21.addConstraint([
    Sketcher.Constraint("Horizontal", 0),
    Sketcher.Constraint("Vertical", 1),
    Sketcher.Constraint("Horizontal", 2),
    Sketcher.Constraint("DistanceX", 0, 1, 0, 2, 14.0),
    Sketcher.Constraint("DistanceY", 1, 2, 1, 1, 12.0),
    Sketcher.Constraint("DistanceX", 2, 2, 2, 1, 16.8),
    Sketcher.Constraint("DistanceX", -1, 1, 0, 2, 77.0),
    Sketcher.Constraint("DistanceY", -1, 1, 0, 2, 24.32049),
])
pad6 = body.newObject("PartDesign::Pad", "Pad005")
pad6.Profile = sketch21
pad6.Length = 20
pad6.Reversed = True

# Sketch on XZ plane
sketch22 = body.newObject("Sketcher::SketchObject", "Sketch021")
sketch22.AttachmentSupport = (doc.getObject("XZ_Plane"), [""])
sketch22.MapMode = "FlatFace"
sketch22.AttachmentOffset = App.Placement(Vector(0, 0, 6.001751), App.Rotation())
sketch22.addGeometry(Part.Circle(Vector(72, 21.3, 0), Vector(0, 0, 1), 1.5), False)
sketch22.addConstraint([
    Sketcher.Constraint("Diameter", 0, 3.0),
    Sketcher.Constraint("DistanceX", -1, 1, 0, 3, 72.0),
    Sketcher.Constraint("DistanceY", -1, 1, 0, 3, 21.32049),
])
pocket16 = body.newObject("PartDesign::Pocket", "Pocket015")
pocket16.Profile = sketch22
pocket16.Type = "ThroughAll"
pocket16.Reversed = True

# Sketch on XZ plane
sketch23 = body.newObject("Sketcher::SketchObject", "Sketch022")
sketch23.AttachmentSupport = (doc.getObject("XZ_Plane"), [""])
sketch23.MapMode = "FlatFace"
sketch23.AttachmentOffset = App.Placement(Vector(0, 0, 29.001751), App.Rotation())
add_polygon(sketch23, [(72, 24.6), (69.2, 22.9), (69.2, 19.7), (72, 18.1), (74.8, 19.7), (74.8, 22.9)])  # lines 0-5
sketch23.addConstraint([
    Sketcher.Constraint("Vertical", 1),
    Sketcher.Constraint("Vertical", 4),
    Sketcher.Constraint("Parallel", 0, 3),
    Sketcher.Constraint("Parallel", 2, 5),
    Sketcher.Constraint("Horizontal", 1, 2, 3, 2),
    Sketcher.Constraint("Horizontal", 0, 2, 4, 2),
    Sketcher.Constraint("Vertical", 2, 2, 5, 2),
    Sketcher.Constraint("Angle", 0, Q("-150 deg")),
    Sketcher.Constraint("DistanceX", -1, 1, 2, 2, 72.0),
    Sketcher.Constraint("DistanceY", 1, 2, 1, 1, 3.25),
    Sketcher.Constraint("DistanceY", 2, 2, 5, 2, 6.5),
    Sketcher.Constraint("DistanceY", -1, 1, 0, 2, 22.94549),
])
pocket17 = body.newObject("PartDesign::Pocket", "Pocket016")
pocket17.Profile = sketch23
pocket17.Length = 15

# Sketch on XZ plane
sketch24 = body.newObject("Sketcher::SketchObject", "Sketch023")
sketch24.AttachmentSupport = (doc.getObject("XZ_Plane"), [""])
sketch24.MapMode = "FlatFace"
sketch24.AttachmentOffset = App.Placement(Vector(0, 0, 2.001751), App.Rotation())
add_polygon(sketch24, [(67, -46), (67, -41), (77, -41), (77, -46)])  # lines 0-3
sketch24.addConstraint([
    Sketcher.Constraint("Vertical", 0),
    Sketcher.Constraint("Horizontal", 1),
    Sketcher.Constraint("Vertical", 2),
    Sketcher.Constraint("Horizontal", 3),
    Sketcher.Constraint("DistanceX", 1, 1, 1, 2, 10.0),
    Sketcher.Constraint("DistanceY", 0, 1, 0, 2, 5.0),
    Sketcher.Constraint("DistanceX", -1, 1, 0, 2, 67.0),
    Sketcher.Constraint("DistanceY", 0, 2, -1, 1, 40.67951),
])
pocket18 = body.newObject("PartDesign::Pocket", "Pocket017")
pocket18.Profile = sketch24
pocket18.Type = "UpToFirst"
pocket18.Reversed = True

# Sketch on XZ plane
sketch25 = body.newObject("Sketcher::SketchObject", "Sketch024")
sketch25.AttachmentSupport = (doc.getObject("XZ_Plane"), [""])
sketch25.MapMode = "FlatFace"
sketch25.AttachmentOffset = App.Placement(Vector(0, 0, -20.998249), App.Rotation())
sketch25.addGeometry(Part.Circle(Vector(40, 17.3, 0), Vector(0, 0, 1), 1.6), False)
sketch25.addConstraint([
    Sketcher.Constraint("Diameter", 0, 3.2),
    Sketcher.Constraint("DistanceX", -1, 1, 0, 3, 40.0),
    Sketcher.Constraint("DistanceY", -1, 1, 0, 3, 17.32049),
])
pocket19 = body.newObject("PartDesign::Pocket", "Pocket018")
pocket19.Profile = sketch25
pocket19.Type = "ThroughAll"
pocket19.Reversed = True

# Sketch on XZ plane
sketch26 = body.newObject("Sketcher::SketchObject", "Sketch025")
sketch26.AttachmentSupport = (doc.getObject("XZ_Plane"), [""])
sketch26.MapMode = "FlatFace"
sketch26.AttachmentOffset = App.Placement(Vector(0, 0, 29.001751), App.Rotation())
add_polygon(sketch26, [(38.4, 20.1), (36.8, 17.3), (38.4, 14.5), (41.6, 14.5), (43.2, 17.3), (41.6, 20.1)])  # lines 0-5
sketch26.addConstraint([
    Sketcher.Constraint("Horizontal", 2),
    Sketcher.Constraint("Horizontal", 5),
    Sketcher.Constraint("Parallel", 0, 3),
    Sketcher.Constraint("Parallel", 1, 4),
    Sketcher.Constraint("Horizontal", 0, 2, 3, 2),
    Sketcher.Constraint("Vertical", 2, 2, 4, 2),
    Sketcher.Constraint("Vertical", 1, 2, 5, 2),
    Sketcher.Constraint("Angle", 0, Q("-120 deg")),
    Sketcher.Constraint("DistanceX", 2, 1, 2, 2, 3.25),
    Sketcher.Constraint("DistanceX", 0, 2, 3, 2, 6.5),
    Sketcher.Constraint("DistanceX", -1, 1, 0, 2, 36.75),
    Sketcher.Constraint("DistanceY", -1, 1, 0, 2, 17.32049),
])
pocket20 = body.newObject("PartDesign::Pocket", "Pocket019")
pocket20.Profile = sketch26
pocket20.Length = 14

doc.recompute()
